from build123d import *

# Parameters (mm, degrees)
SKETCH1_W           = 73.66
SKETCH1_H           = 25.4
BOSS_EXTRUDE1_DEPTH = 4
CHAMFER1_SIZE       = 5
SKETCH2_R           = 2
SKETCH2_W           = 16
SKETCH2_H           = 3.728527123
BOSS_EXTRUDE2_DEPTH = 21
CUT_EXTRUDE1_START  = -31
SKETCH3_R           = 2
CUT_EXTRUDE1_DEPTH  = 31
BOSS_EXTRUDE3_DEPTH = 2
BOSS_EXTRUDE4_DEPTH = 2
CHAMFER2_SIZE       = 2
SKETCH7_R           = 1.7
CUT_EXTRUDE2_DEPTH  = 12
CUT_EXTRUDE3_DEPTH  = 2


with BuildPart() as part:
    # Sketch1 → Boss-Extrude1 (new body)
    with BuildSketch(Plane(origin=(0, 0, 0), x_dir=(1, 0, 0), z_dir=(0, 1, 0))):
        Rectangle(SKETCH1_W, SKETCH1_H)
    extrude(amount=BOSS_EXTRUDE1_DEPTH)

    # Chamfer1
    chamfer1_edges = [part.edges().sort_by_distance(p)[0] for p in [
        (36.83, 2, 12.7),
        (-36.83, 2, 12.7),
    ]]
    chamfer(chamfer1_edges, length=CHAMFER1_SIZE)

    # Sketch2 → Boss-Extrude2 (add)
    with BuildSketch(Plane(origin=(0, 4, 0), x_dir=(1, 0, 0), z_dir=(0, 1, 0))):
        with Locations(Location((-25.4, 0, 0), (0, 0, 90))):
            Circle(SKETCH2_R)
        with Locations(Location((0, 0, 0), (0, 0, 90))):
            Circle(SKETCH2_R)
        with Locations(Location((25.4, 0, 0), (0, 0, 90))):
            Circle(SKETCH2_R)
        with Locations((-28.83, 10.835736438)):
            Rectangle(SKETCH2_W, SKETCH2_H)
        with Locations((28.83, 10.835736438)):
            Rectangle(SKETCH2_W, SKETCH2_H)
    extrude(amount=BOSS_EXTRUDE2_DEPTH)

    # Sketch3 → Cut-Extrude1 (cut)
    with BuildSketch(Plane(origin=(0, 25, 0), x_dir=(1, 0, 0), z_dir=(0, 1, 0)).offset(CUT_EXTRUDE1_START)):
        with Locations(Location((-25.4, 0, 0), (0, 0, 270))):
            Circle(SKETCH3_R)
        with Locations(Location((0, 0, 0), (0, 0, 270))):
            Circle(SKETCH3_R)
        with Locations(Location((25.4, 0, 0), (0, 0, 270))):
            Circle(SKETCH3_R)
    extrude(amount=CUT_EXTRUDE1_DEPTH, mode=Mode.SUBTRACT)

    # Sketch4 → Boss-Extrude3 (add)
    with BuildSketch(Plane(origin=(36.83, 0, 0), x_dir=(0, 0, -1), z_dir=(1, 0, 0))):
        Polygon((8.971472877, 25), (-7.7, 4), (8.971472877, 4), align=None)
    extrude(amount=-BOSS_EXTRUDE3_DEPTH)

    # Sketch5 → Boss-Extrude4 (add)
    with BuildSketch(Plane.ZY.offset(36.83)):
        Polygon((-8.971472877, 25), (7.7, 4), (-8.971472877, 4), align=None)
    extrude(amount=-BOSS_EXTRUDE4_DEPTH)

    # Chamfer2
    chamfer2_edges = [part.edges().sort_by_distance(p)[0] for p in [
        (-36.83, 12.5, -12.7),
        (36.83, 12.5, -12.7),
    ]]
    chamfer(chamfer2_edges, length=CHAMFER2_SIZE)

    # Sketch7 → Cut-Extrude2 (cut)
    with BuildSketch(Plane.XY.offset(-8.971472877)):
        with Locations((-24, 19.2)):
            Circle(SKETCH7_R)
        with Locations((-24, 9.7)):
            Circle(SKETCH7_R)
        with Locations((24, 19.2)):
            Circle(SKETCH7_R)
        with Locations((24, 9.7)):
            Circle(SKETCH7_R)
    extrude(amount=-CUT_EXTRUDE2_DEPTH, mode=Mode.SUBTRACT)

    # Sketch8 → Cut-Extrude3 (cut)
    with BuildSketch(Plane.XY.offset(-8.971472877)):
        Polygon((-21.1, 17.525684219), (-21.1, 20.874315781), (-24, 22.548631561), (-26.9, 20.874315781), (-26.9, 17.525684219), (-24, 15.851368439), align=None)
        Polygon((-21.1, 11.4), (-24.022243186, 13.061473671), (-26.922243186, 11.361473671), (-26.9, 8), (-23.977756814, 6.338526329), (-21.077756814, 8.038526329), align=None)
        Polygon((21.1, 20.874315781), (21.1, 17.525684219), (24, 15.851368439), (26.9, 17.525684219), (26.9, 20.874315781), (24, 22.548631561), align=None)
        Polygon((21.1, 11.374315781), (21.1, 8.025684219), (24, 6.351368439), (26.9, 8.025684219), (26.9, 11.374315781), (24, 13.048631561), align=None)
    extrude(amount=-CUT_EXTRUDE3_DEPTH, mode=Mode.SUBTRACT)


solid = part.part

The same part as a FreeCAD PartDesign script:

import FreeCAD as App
import Part
import Sketcher
Q = App.Units.Quantity


def edges_at(feature, points):
    """Names of the edges that pass closest to the given points."""
    edges = feature.Shape.Edges
    near = lambda p: min(range(len(edges)), key=lambda i: edges[i].distToShape(Part.Vertex(*p))[0])
    return sorted({f"Edge{near(p) + 1}" for p in points})


def add_polygon(sketch, points):
    """Adds a closed chain of lines whose ends are joined by coincident constraints."""
    first, n = sketch.GeometryCount, len(points)
    for a, b in zip(points, points[1:] + points[:1]):
        sketch.addGeometry(Part.LineSegment(App.Vector(*a, 0), App.Vector(*b, 0)), False)
    for i in range(n):
        sketch.addConstraint(Sketcher.Constraint("Coincident", first + i, 2, first + (i + 1) % n, 1))

doc = App.newDocument("Part")
params = doc.addObject("Spreadsheet::Sheet", "Params")
for row, (alias, value) in enumerate([
    ("sketch1_height", "25.4 mm"),
    ("sketch1_width", "73.66 mm"),
    ("pad1_length", "4 mm"),
    ("chamfer_size", "5 mm"),
    ("sketch2_diameter", "4 mm"),
    ("sketch2_width", "16 mm"),
    ("pad2_length", "21 mm"),
    ("sketch3_diameter", "4 mm"),
    ("pocket1_length", "31 mm"),
    ("sketch4_width", "21 mm"),
    ("pad3_length", "2 mm"),
    ("sketch5_width", "21 mm"),
    ("pad4_length", "2 mm"),
    ("chamfer2_size", "2 mm"),
    ("sketch6_diameter", "3.4 mm"),
    ("pocket2_length", "12 mm"),
    ("pocket3_length", "2 mm"),
], start=1):
    params.set(f"A{row}", alias)
    params.set(f"B{row}", "=" + value)
    params.setAlias(f"B{row}", alias)

body = doc.addObject("PartDesign::Body", "Body")

sketch1 = body.newObject("Sketcher::SketchObject", "Sketch")
sketch1.AttachmentSupport = (doc.getObject("XZ_Plane"), [""])
sketch1.MapMode = "FlatFace"
add_polygon(sketch1, [(-37, -13), (-37, 13), (37, 13), (37, -13)])
sketch1.addConstraint(Sketcher.Constraint("Vertical", 0))
sketch1.addConstraint(Sketcher.Constraint("Horizontal", 1))
sketch1.addConstraint(Sketcher.Constraint("Vertical", 2))
sketch1.addConstraint(Sketcher.Constraint("Horizontal", 3))
sketch1.addConstraint(Sketcher.Constraint("Symmetric", 0, 2, 2, 2, -1, 1))
sketch1.addConstraint(Sketcher.Constraint("DistanceY", 0, 1, 0, 2, Q("25.4 mm")))
sketch1.addConstraint(Sketcher.Constraint("DistanceX", 1, 1, 1, 2, Q("73.66 mm")))
sketch1.setExpression("Constraints[9]", "Params.sketch1_height")
sketch1.setExpression("Constraints[10]", "Params.sketch1_width")
pad1 = body.newObject("PartDesign::Pad", "Pad")
pad1.Profile = sketch1
pad1.setExpression("Length", "Params.pad1_length")
pad1.Reversed = True
doc.recompute()

chamfer = body.newObject("PartDesign::Chamfer", "Chamfer")
chamfer.Base = (pad1, edges_at(pad1, [(36.83, 2, 12.7), (-36.83, 2, 12.7)]))
chamfer.setExpression("Size", "Params.chamfer_size")

sketch2 = body.newObject("Sketcher::SketchObject", "Sketch001")
sketch2.AttachmentSupport = (doc.getObject("XZ_Plane"), [""])
sketch2.MapMode = "FlatFace"
sketch2.AttachmentOffset = App.Placement(App.Vector(0, 0, -4), App.Rotation())
sketch2.addGeometry(Part.Circle(App.Vector(-25.4, 0, 0), App.Vector(0, 0, 1), 2), False)
sketch2.addGeometry(Part.Circle(App.Vector(0, 0, 0), App.Vector(0, 0, 1), 2), False)
sketch2.addGeometry(Part.Circle(App.Vector(25.4, 0, 0), App.Vector(0, 0, 1), 2), False)
add_polygon(sketch2, [(-36.8, -12.7), (-36.8, -9), (-20.8, -9), (-20.8, -12.7)])
add_polygon(sketch2, [(20.8, -12.7), (20.8, -9), (36.8, -9), (36.8, -12.7)])
sketch2.addConstraint(Sketcher.Constraint("Vertical", 3))
sketch2.addConstraint(Sketcher.Constraint("Horizontal", 4))
sketch2.addConstraint(Sketcher.Constraint("Vertical", 5))
sketch2.addConstraint(Sketcher.Constraint("Horizontal", 6))
sketch2.addConstraint(Sketcher.Constraint("Vertical", 7))
sketch2.addConstraint(Sketcher.Constraint("Horizontal", 8))
sketch2.addConstraint(Sketcher.Constraint("Vertical", 9))
sketch2.addConstraint(Sketcher.Constraint("Horizontal", 10))
sketch2.addConstraint(Sketcher.Constraint("Coincident", 1, 3, -1, 1))
sketch2.addConstraint(Sketcher.Constraint("Equal", 0, 1))
sketch2.addConstraint(Sketcher.Constraint("Equal", 1, 2))
sketch2.addConstraint(Sketcher.Constraint("Symmetric", 0, 3, 2, 3, -1, 1))
sketch2.addConstraint(Sketcher.Constraint("Symmetric", 4, 2, 7, 2, -2))
sketch2.addConstraint(Sketcher.Constraint("Symmetric", 6, 2, 9, 2, -2))
sketch2.addConstraint(Sketcher.Constraint("PointOnObject", 0, 3, -1))
sketch2.addConstraint(Sketcher.Constraint("Diameter", 0, Q("4 mm")))
sketch2.addConstraint(Sketcher.Constraint("DistanceX", 4, 1, 4, 2, Q("16 mm")))
sketch2.addConstraint(Sketcher.Constraint("DistanceX", 0, 3, -1, 1, Q("25.4 mm")))
sketch2.addConstraint(Sketcher.Constraint("DistanceY", 5, 2, -1, 1, Q("12.7 mm")))
sketch2.addConstraint(Sketcher.Constraint("DistanceX", 3, 2, -1, 1, Q("36.83 mm")))
sketch2.addConstraint(Sketcher.Constraint("DistanceY", 3, 1, 3, 2, Q("3.728527 mm")))
sketch2.setExpression("Constraints[23]", "Params.sketch2_diameter")
sketch2.setExpression("Constraints[24]", "Params.sketch2_width")
pad2 = body.newObject("PartDesign::Pad", "Pad001")
pad2.Profile = sketch2
pad2.setExpression("Length", "Params.pad2_length")
pad2.Reversed = True

sketch3 = body.newObject("Sketcher::SketchObject", "Sketch002")
sketch3.AttachmentSupport = (doc.getObject("XZ_Plane"), [""])
sketch3.MapMode = "FlatFace"
sketch3.AttachmentOffset = App.Placement(App.Vector(0, 0, 6), App.Rotation())
sketch3.addGeometry(Part.Circle(App.Vector(-25.4, 0, 0), App.Vector(0, 0, 1), 2), False)
sketch3.addGeometry(Part.Circle(App.Vector(0, 0, 0), App.Vector(0, 0, 1), 2), False)
sketch3.addGeometry(Part.Circle(App.Vector(25.4, 0, 0), App.Vector(0, 0, 1), 2), False)
sketch3.addConstraint(Sketcher.Constraint("Coincident", 1, 3, -1, 1))
sketch3.addConstraint(Sketcher.Constraint("Equal", 0, 1))
sketch3.addConstraint(Sketcher.Constraint("Equal", 1, 2))
sketch3.addConstraint(Sketcher.Constraint("Symmetric", 0, 3, 2, 3, -1, 1))
sketch3.addConstraint(Sketcher.Constraint("PointOnObject", 0, 3, -1))
sketch3.addConstraint(Sketcher.Constraint("Diameter", 0, Q("4 mm")))
sketch3.addConstraint(Sketcher.Constraint("DistanceX", 0, 3, -1, 1, Q("25.4 mm")))
sketch3.setExpression("Constraints[5]", "Params.sketch3_diameter")
pocket1 = body.newObject("PartDesign::Pocket", "Pocket")
pocket1.Profile = sketch3
pocket1.setExpression("Length", "Params.pocket1_length")

sketch4 = body.newObject("Sketcher::SketchObject", "Sketch003")
sketch4.AttachmentSupport = (doc.getObject("YZ_Plane"), [""])
sketch4.MapMode = "FlatFace"
sketch4.AttachmentOffset = App.Placement(App.Vector(0, 0, 36.83), App.Rotation())
add_polygon(sketch4, [(25, -9), (4, 8), (4, -9)])
sketch4.addConstraint(Sketcher.Constraint("Vertical", 1))
sketch4.addConstraint(Sketcher.Constraint("Horizontal", 2))
sketch4.addConstraint(Sketcher.Constraint("DistanceX", 2, 1, 2, 2, Q("21 mm")))
sketch4.addConstraint(Sketcher.Constraint("DistanceX", -1, 1, 0, 2, Q("4 mm")))
sketch4.addConstraint(Sketcher.Constraint("DistanceY", -1, 1, 0, 2, Q("7.7 mm")))
sketch4.addConstraint(Sketcher.Constraint("Distance", 0, Q("26.813019 mm")))
sketch4.setExpression("Constraints[5]", "Params.sketch4_width")
pad3 = body.newObject("PartDesign::Pad", "Pad002")
pad3.Profile = sketch4
pad3.setExpression("Length", "Params.pad3_length")
pad3.Reversed = True

sketch5 = body.newObject("Sketcher::SketchObject", "Sketch004")
sketch5.AttachmentSupport = (doc.getObject("YZ_Plane"), [""])
sketch5.MapMode = "FlatFace"
sketch5.AttachmentOffset = App.Placement(App.Vector(0, 0, -36.83), App.Rotation())
add_polygon(sketch5, [(4, 8), (25, -9), (4, -9)])
sketch5.addConstraint(Sketcher.Constraint("Horizontal", 1))
sketch5.addConstraint(Sketcher.Constraint("Vertical", 2))
sketch5.addConstraint(Sketcher.Constraint("DistanceX", 1, 2, 1, 1, Q("21 mm")))
sketch5.addConstraint(Sketcher.Constraint("DistanceX", -1, 1, 0, 2, Q("25 mm")))
sketch5.addConstraint(Sketcher.Constraint("DistanceY", -1, 1, 2, 2, Q("7.7 mm")))
sketch5.addConstraint(Sketcher.Constraint("Distance", 0, Q("26.813019 mm")))
sketch5.setExpression("Constraints[5]", "Params.sketch5_width")
pad4 = body.newObject("PartDesign::Pad", "Pad003")
pad4.Profile = sketch5
pad4.setExpression("Length", "Params.pad4_length")
doc.recompute()

chamfer2 = body.newObject("PartDesign::Chamfer", "Chamfer001")
chamfer2.Base = (pad4, edges_at(pad4, [(-36.83, 14.5, -12.7), (36.83, 14.5, -12.7)]))
chamfer2.setExpression("Size", "Params.chamfer2_size")

sketch6 = body.newObject("Sketcher::SketchObject", "Sketch005")
sketch6.AttachmentSupport = (doc.getObject("XY_Plane"), [""])
sketch6.MapMode = "FlatFace"
sketch6.AttachmentOffset = App.Placement(App.Vector(0, 0, -8.971473), App.Rotation())
sketch6.addGeometry(Part.Circle(App.Vector(-24, 19.2, 0), App.Vector(0, 0, 1), 1.7), False)
sketch6.addGeometry(Part.Circle(App.Vector(-24, 9.7, 0), App.Vector(0, 0, 1), 1.7), False)
sketch6.addGeometry(Part.Circle(App.Vector(24, 19.2, 0), App.Vector(0, 0, 1), 1.7), False)
sketch6.addGeometry(Part.Circle(App.Vector(24, 9.7, 0), App.Vector(0, 0, 1), 1.7), False)
sketch6.addConstraint(Sketcher.Constraint("Equal", 0, 1))
sketch6.addConstraint(Sketcher.Constraint("Equal", 1, 2))
sketch6.addConstraint(Sketcher.Constraint("Equal", 2, 3))
sketch6.addConstraint(Sketcher.Constraint("Symmetric", 0, 3, 2, 3, -2))
sketch6.addConstraint(Sketcher.Constraint("Symmetric", 1, 3, 3, 3, -2))
sketch6.addConstraint(Sketcher.Constraint("Vertical", 0, 3, 1, 3))
sketch6.addConstraint(Sketcher.Constraint("Diameter", 0, Q("3.4 mm")))
sketch6.addConstraint(Sketcher.Constraint("DistanceX", 0, 3, -1, 1, Q("24 mm")))
sketch6.addConstraint(Sketcher.Constraint("DistanceY", -1, 1, 0, 3, Q("19.2 mm")))
sketch6.addConstraint(Sketcher.Constraint("DistanceY", -1, 1, 1, 3, Q("9.7 mm")))
sketch6.setExpression("Constraints[6]", "Params.sketch6_diameter")
pocket2 = body.newObject("PartDesign::Pocket", "Pocket001")
pocket2.Profile = sketch6
pocket2.setExpression("Length", "Params.pocket2_length")

sketch7 = body.newObject("Sketcher::SketchObject", "Sketch006")
sketch7.AttachmentSupport = (doc.getObject("XY_Plane"), [""])
sketch7.MapMode = "FlatFace"
sketch7.AttachmentOffset = App.Placement(App.Vector(0, 0, -8.971473), App.Rotation())
add_polygon(sketch7, [(-21.1, 17.5), (-21.1, 20.9), (-24, 22.5), (-26.9, 20.9), (-26.9, 17.5), (-24, 15.9)])
add_polygon(sketch7, [(-21.1, 11.4), (-24, 13.1), (-26.9, 11.4), (-26.9, 8), (-24, 6.3), (-21.1, 8)])
add_polygon(sketch7, [(21.1, 20.9), (21.1, 17.5), (24, 15.9), (26.9, 17.5), (26.9, 20.9), (24, 22.5)])
add_polygon(sketch7, [(21.1, 11.4), (21.1, 8), (24, 6.4), (26.9, 8), (26.9, 11.4), (24, 13)])
sketch7.addConstraint(Sketcher.Constraint("Vertical", 0))
sketch7.addConstraint(Sketcher.Constraint("Vertical", 3))
sketch7.addConstraint(Sketcher.Constraint("Vertical", 12))
sketch7.addConstraint(Sketcher.Constraint("Vertical", 15))
sketch7.addConstraint(Sketcher.Constraint("Vertical", 18))
sketch7.addConstraint(Sketcher.Constraint("Vertical", 21))
sketch7.addConstraint(Sketcher.Constraint("Symmetric", 5, 2, 12, 2, -2))
sketch7.addConstraint(Sketcher.Constraint("Symmetric", 4, 2, 13, 2, -2))
sketch7.addConstraint(Sketcher.Constraint("Symmetric", 3, 2, 14, 2, -2))
sketch7.addConstraint(Sketcher.Constraint("Symmetric", 1, 2, 16, 2, -2))
sketch7.addConstraint(Sketcher.Constraint("Parallel", 1, 4))
sketch7.addConstraint(Sketcher.Constraint("Parallel", 2, 5))
sketch7.addConstraint(Sketcher.Constraint("Parallel", 6, 9))
sketch7.addConstraint(Sketcher.Constraint("Parallel", 7, 10))
sketch7.addConstraint(Sketcher.Constraint("Parallel", 8, 11))
sketch7.addConstraint(Sketcher.Constraint("Parallel", 4, 13))
sketch7.addConstraint(Sketcher.Constraint("Parallel", 13, 16))
sketch7.addConstraint(Sketcher.Constraint("Parallel", 14, 17))
sketch7.addConstraint(Sketcher.Constraint("Parallel", 16, 19))
sketch7.addConstraint(Sketcher.Constraint("Parallel", 17, 20))
sketch7.addConstraint(Sketcher.Constraint("Parallel", 19, 22))
sketch7.addConstraint(Sketcher.Constraint("Parallel", 20, 23))
sketch7.addConstraint(Sketcher.Constraint("Horizontal", 0, 2, 2, 2))
sketch7.addConstraint(Sketcher.Constraint("Horizontal", 3, 2, 5, 2))
sketch7.addConstraint(Sketcher.Constraint("Horizontal", 18, 2, 20, 2))
sketch7.addConstraint(Sketcher.Constraint("Horizontal", 21, 2, 23, 2))
sketch7.addConstraint(Sketcher.Constraint("Vertical", 3, 2, 8, 2))
sketch7.addConstraint(Sketcher.Constraint("Vertical", 5, 2, 11, 2))
sketch7.addConstraint(Sketcher.Constraint("Vertical", 17, 2, 18, 2))
sketch7.addConstraint(Sketcher.Constraint("Vertical", 16, 2, 19, 2))
sketch7.addConstraint(Sketcher.Constraint("Equal", 15, 18))
sketch7.addConstraint(Sketcher.Constraint("Equal", 6, 7))
sketch7.addConstraint(Sketcher.Constraint("Equal", 7, 8))
sketch7.addConstraint(Sketcher.Constraint("Equal", 8, 9))
sketch7.addConstraint(Sketcher.Constraint("Angle", 1, Q("150 deg")))
sketch7.addConstraint(Sketcher.Constraint("DistanceX", 1, 2, -1, 1, Q("24 mm")))
sketch7.addConstraint(Sketcher.Constraint("DistanceY", -1, 1, 8, 2, Q("8 mm")))
sketch7.addConstraint(Sketcher.Constraint("DistanceX", 0, 2, -1, 1, Q("21.1 mm")))
sketch7.addConstraint(Sketcher.Constraint("DistanceY", -1, 1, 11, 2, Q("11.4 mm")))
sketch7.addConstraint(Sketcher.Constraint("DistanceX", 7, 2, 6, 2, Q("2.9 mm")))
sketch7.addConstraint(Sketcher.Constraint("DistanceY", 7, 2, 6, 2, Q("1.7 mm")))
sketch7.addConstraint(Sketcher.Constraint("DistanceY", 18, 2, 12, 2, Q("9.5 mm")))
sketch7.addConstraint(Sketcher.Constraint("DistanceY", 0, 1, 0, 2, Q("3.348632 mm")))
sketch7.addConstraint(Sketcher.Constraint("DistanceY", -1, 1, 1, 2, Q("22.548632 mm")))
pocket3 = body.newObject("PartDesign::Pocket", "Pocket002")
pocket3.Profile = sketch7
pocket3.setExpression("Length", "Params.pocket3_length")

doc.recompute()
